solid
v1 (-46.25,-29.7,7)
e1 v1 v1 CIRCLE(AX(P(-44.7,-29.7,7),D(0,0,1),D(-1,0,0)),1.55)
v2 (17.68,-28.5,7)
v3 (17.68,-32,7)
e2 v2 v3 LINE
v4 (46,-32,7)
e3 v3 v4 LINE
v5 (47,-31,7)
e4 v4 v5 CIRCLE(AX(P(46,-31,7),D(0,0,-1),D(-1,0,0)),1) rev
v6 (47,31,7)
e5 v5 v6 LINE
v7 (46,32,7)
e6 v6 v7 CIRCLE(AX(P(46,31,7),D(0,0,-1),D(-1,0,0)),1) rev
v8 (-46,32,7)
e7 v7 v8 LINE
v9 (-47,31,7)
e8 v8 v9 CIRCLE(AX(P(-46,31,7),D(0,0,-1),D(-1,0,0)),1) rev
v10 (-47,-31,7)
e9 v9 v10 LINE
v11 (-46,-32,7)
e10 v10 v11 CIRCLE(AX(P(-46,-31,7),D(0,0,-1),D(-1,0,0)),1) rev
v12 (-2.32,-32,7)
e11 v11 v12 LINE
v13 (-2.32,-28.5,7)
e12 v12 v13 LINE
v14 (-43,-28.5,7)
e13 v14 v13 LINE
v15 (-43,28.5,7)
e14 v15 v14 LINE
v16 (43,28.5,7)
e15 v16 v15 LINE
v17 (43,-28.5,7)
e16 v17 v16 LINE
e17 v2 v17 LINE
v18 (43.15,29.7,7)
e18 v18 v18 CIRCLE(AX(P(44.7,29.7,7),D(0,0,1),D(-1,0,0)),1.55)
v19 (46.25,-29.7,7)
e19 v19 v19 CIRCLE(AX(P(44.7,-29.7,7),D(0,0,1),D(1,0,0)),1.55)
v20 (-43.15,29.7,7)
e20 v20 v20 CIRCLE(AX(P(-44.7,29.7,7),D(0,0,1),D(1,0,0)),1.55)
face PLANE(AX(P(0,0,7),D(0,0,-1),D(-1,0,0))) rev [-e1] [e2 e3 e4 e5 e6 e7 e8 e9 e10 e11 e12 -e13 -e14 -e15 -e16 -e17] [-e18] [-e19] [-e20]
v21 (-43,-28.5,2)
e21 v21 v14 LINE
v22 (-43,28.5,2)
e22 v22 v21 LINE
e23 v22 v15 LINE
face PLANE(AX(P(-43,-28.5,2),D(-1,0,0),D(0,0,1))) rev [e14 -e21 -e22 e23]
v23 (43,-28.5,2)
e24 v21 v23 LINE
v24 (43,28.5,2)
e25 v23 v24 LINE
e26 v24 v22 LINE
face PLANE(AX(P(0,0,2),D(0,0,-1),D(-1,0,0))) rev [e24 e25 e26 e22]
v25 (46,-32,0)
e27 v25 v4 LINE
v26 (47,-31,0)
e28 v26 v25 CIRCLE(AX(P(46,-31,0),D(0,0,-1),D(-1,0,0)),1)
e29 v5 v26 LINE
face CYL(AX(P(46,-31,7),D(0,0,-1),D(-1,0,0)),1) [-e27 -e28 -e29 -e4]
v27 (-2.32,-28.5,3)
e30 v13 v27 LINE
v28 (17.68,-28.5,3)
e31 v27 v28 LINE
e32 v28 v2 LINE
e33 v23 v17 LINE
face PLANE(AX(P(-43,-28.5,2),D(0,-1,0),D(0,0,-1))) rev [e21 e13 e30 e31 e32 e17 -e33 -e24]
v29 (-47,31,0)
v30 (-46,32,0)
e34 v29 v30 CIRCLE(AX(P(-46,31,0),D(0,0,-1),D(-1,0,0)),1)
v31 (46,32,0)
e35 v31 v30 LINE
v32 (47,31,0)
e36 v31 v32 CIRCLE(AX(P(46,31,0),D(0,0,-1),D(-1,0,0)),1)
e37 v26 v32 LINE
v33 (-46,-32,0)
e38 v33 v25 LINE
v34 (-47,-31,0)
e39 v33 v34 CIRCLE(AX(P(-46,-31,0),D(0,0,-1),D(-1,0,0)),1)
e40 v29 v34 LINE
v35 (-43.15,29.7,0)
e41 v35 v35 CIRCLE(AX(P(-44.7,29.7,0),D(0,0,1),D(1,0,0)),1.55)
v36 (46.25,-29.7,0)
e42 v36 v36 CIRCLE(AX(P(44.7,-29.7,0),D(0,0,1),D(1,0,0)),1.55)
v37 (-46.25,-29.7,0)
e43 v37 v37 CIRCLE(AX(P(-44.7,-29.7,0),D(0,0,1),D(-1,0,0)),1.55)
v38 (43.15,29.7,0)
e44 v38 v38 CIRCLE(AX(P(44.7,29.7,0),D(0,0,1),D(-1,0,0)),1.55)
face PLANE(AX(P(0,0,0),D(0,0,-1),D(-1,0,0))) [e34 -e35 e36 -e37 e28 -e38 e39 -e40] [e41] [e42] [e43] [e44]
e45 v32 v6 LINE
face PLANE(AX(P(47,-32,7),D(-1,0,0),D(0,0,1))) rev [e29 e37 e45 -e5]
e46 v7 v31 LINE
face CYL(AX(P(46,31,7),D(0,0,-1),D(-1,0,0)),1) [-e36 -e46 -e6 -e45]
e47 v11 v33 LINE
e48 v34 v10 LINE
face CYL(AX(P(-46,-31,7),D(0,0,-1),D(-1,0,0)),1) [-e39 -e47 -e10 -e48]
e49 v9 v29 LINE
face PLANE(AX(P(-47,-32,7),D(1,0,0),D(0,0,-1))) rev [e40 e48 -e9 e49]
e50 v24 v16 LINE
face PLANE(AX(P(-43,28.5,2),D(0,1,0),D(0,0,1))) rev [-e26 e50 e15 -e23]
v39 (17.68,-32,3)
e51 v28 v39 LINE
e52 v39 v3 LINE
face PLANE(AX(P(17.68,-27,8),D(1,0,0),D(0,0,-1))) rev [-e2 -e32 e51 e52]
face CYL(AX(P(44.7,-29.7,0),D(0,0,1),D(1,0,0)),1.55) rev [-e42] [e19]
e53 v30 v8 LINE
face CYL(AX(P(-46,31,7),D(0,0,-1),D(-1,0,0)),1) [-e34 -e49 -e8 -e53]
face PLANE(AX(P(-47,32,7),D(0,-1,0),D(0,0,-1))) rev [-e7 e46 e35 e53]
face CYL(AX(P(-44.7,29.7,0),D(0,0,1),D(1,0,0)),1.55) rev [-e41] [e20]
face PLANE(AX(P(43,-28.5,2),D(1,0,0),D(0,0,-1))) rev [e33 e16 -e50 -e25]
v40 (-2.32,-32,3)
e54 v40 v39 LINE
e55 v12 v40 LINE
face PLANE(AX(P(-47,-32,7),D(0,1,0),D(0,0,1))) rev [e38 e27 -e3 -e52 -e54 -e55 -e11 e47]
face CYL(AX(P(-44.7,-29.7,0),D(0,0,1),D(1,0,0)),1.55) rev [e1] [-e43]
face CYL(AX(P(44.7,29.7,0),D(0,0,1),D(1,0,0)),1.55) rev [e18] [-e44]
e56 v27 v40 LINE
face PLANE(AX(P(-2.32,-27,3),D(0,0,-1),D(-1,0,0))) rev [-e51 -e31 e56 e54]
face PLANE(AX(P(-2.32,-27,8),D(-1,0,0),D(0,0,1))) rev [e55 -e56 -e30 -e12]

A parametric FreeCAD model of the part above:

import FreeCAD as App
import Part
import Sketcher

V = App.Vector
Q = App.Units.Quantity


def edges_at(feature, points):
    """Names of the edges that pass closest to the given points."""
    edges = feature.Shape.Edges
    near = lambda p: min(range(len(edges)), key=lambda i: edges[i].distToShape(Part.Vertex(*p))[0])
    return sorted({f"Edge{near(p) + 1}" for p in points})


def add_polygon(sketch, points):
    """Adds a closed chain of lines whose ends are joined by coincident constraints."""
    first, n = sketch.GeometryCount, len(points)
    for a, b in zip(points, points[1:] + points[:1]):
        sketch.addGeometry(Part.LineSegment(App.Vector(*a, 0), App.Vector(*b, 0)), False)
    for i in range(n):
        sketch.addConstraint(Sketcher.Constraint("Coincident", first + i, 2, first + (i + 1) % n, 1))

doc = App.newDocument("Part")
params = doc.addObject("Spreadsheet::Sheet", "Params")
for row, (alias, value) in enumerate([
    ("sketch1_width", "94 mm"),
    ("sketch1_height", "64 mm"),
    ("pad1_length", "7 mm"),
    ("fillet_radius", "1 mm"),
    ("sketch2_width", "86 mm"),
    ("sketch2_height", "57 mm"),
    ("pocket1_length", "5 mm"),
    ("sketch3_diameter", "3.1 mm"),
    ("sketch4_width", "20 mm"),
    ("sketch4_height", "5 mm"),
    ("pocket3_length", "5 mm"),
], start=1):
    params.set(f"A{row}", alias)
    params.set(f"B{row}", "=" + value)
    params.setAlias(f"B{row}", alias)

body = doc.addObject("PartDesign::Body", "Body")

# Sketch on XY plane
sketch1 = doc.addObject("Sketcher::SketchObject", "Sketch")
body.addObject(sketch1)
sketch1.AttachmentSupport = (doc.XY_Plane, [""])
sketch1.MapMode = "FlatFace"
add_polygon(sketch1, [(-47, 32), (-47, -32), (47, -32), (47, 32)])  # lines 0-3
sketch1.addConstraint(Sketcher.Constraint("Vertical", 0))
sketch1.addConstraint(Sketcher.Constraint("Horizontal", 1))
sketch1.addConstraint(Sketcher.Constraint("Vertical", 2))
sketch1.addConstraint(Sketcher.Constraint("Horizontal", 3))
sketch1.addConstraint(Sketcher.Constraint("Symmetric", 0, 2, 2, 2, -1, 1))
sketch1.addConstraint(Sketcher.Constraint("DistanceX", 1, 1, 1, 2, Q("94 mm")))
sketch1.addConstraint(Sketcher.Constraint("DistanceY", 0, 2, 0, 1, Q("64 mm")))
sketch1.setExpression("Constraints[9]", "Params.sketch1_width")
sketch1.setExpression("Constraints[10]", "Params.sketch1_height")
pad1 = doc.addObject("PartDesign::Pad", "Pad")
body.addObject(pad1)
pad1.Profile = sketch1
pad1.setExpression("Length", "Params.pad1_length")
doc.recompute()

fillet = doc.addObject("PartDesign::Fillet", "Fillet")
body.addObject(fillet)
fillet.Base = (pad1, edges_at(pad1, [
    (47, -32, 3.5),
    (-47, -32, 3.5),
    (-47, 32, 3.5),
    (47, 32, 3.5),
]))
fillet.setExpression("Radius", "Params.fillet_radius")

# Sketch on XY plane
sketch2 = doc.addObject("Sketcher::SketchObject", "Sketch001")
body.addObject(sketch2)
sketch2.AttachmentSupport = (doc.XY_Plane, [""])
sketch2.MapMode = "FlatFace"
sketch2.AttachmentOffset = App.Placement(V(0, 0, 7), App.Rotation())
add_polygon(sketch2, [(-43, 28), (-43, -28), (43, -28), (43, 28)])  # lines 0-3
sketch2.addConstraint(Sketcher.Constraint("Vertical", 0))
sketch2.addConstraint(Sketcher.Constraint("Horizontal", 1))
sketch2.addConstraint(Sketcher.Constraint("Vertical", 2))
sketch2.addConstraint(Sketcher.Constraint("Horizontal", 3))
sketch2.addConstraint(Sketcher.Constraint("Symmetric", 0, 2, 2, 2, -1, 1))
sketch2.addConstraint(Sketcher.Constraint("DistanceX", 1, 1, 1, 2, Q("86 mm")))
sketch2.addConstraint(Sketcher.Constraint("DistanceY", 0, 2, 0, 1, Q("57 mm")))
sketch2.setExpression("Constraints[9]", "Params.sketch2_width")
sketch2.setExpression("Constraints[10]", "Params.sketch2_height")
pocket1 = doc.addObject("PartDesign::Pocket", "Pocket")
body.addObject(pocket1)
pocket1.Profile = sketch2
pocket1.setExpression("Length", "Params.pocket1_length")

# Sketch on XY plane
sketch3 = doc.addObject("Sketcher::SketchObject", "Sketch002")
body.addObject(sketch3)
sketch3.AttachmentSupport = (doc.XY_Plane, [""])
sketch3.MapMode = "FlatFace"
sketch3.AttachmentOffset = App.Placement(V(0, 0, 7), App.Rotation())
sketch3.addGeometry(Part.Circle(V(-44.7, 29.7, 0), V(0, 0, 1), 1.6), False)
sketch3.addGeometry(Part.Circle(V(44.7, 29.7, 0), V(0, 0, 1), 1.6), False)
sketch3.addGeometry(Part.Circle(V(44.7, -29.7, 0), V(0, 0, 1), 1.6), False)
sketch3.addGeometry(Part.Circle(V(-44.7, -29.7, 0), V(0, 0, 1), 1.6), False)
sketch3.addConstraint(Sketcher.Constraint("Equal", 0, 1))
sketch3.addConstraint(Sketcher.Constraint("Equal", 1, 2))
sketch3.addConstraint(Sketcher.Constraint("Equal", 2, 3))
sketch3.addConstraint(Sketcher.Constraint("Symmetric", 0, 3, 2, 3, -1, 1))
sketch3.addConstraint(Sketcher.Constraint("Symmetric", 1, 3, 3, 3, -1, 1))
sketch3.addConstraint(Sketcher.Constraint("Symmetric", 0, 3, 1, 3, -2))
sketch3.addConstraint(Sketcher.Constraint("Diameter", 0, Q("3.1 mm")))
sketch3.addConstraint(Sketcher.Constraint("DistanceX", 0, 3, -1, 1, Q("44.7 mm")))
sketch3.addConstraint(Sketcher.Constraint("DistanceY", -1, 1, 0, 3, Q("29.7 mm")))
sketch3.setExpression("Constraints[6]", "Params.sketch3_diameter")
pocket2 = doc.addObject("PartDesign::Pocket", "Pocket001")
body.addObject(pocket2)
pocket2.Profile = sketch3
pocket2.Type = "ThroughAll"

# Sketch on XZ plane
sketch4 = doc.addObject("Sketcher::SketchObject", "Sketch003")
body.addObject(sketch4)
sketch4.AttachmentSupport = (doc.XZ_Plane, [""])
sketch4.MapMode = "FlatFace"
sketch4.AttachmentOffset = App.Placement(V(0, 0, 32), App.Rotation())
add_polygon(sketch4, [(-2, 8), (-2, 3), (18, 3), (18, 8)])  # lines 0-3
sketch4.addConstraint(Sketcher.Constraint("Vertical", 0))
sketch4.addConstraint(Sketcher.Constraint("Horizontal", 1))
sketch4.addConstraint(Sketcher.Constraint("Vertical", 2))
sketch4.addConstraint(Sketcher.Constraint("Horizontal", 3))
sketch4.addConstraint(Sketcher.Constraint("DistanceX", 1, 1, 1, 2, Q("20 mm")))
sketch4.addConstraint(Sketcher.Constraint("DistanceY", 0, 2, 0, 1, Q("5 mm")))
sketch4.addConstraint(Sketcher.Constraint("DistanceY", -1, 1, 0, 2, Q("3 mm")))
sketch4.addConstraint(Sketcher.Constraint("DistanceX", 0, 2, -1, 1, Q("2.32 mm")))
sketch4.setExpression("Constraints[8]", "Params.sketch4_width")
sketch4.setExpression("Constraints[9]", "Params.sketch4_height")
pocket3 = doc.addObject("PartDesign::Pocket", "Pocket002")
body.addObject(pocket3)
pocket3.Profile = sketch4
pocket3.setExpression("Length", "Params.pocket3_length")

doc.recompute()
